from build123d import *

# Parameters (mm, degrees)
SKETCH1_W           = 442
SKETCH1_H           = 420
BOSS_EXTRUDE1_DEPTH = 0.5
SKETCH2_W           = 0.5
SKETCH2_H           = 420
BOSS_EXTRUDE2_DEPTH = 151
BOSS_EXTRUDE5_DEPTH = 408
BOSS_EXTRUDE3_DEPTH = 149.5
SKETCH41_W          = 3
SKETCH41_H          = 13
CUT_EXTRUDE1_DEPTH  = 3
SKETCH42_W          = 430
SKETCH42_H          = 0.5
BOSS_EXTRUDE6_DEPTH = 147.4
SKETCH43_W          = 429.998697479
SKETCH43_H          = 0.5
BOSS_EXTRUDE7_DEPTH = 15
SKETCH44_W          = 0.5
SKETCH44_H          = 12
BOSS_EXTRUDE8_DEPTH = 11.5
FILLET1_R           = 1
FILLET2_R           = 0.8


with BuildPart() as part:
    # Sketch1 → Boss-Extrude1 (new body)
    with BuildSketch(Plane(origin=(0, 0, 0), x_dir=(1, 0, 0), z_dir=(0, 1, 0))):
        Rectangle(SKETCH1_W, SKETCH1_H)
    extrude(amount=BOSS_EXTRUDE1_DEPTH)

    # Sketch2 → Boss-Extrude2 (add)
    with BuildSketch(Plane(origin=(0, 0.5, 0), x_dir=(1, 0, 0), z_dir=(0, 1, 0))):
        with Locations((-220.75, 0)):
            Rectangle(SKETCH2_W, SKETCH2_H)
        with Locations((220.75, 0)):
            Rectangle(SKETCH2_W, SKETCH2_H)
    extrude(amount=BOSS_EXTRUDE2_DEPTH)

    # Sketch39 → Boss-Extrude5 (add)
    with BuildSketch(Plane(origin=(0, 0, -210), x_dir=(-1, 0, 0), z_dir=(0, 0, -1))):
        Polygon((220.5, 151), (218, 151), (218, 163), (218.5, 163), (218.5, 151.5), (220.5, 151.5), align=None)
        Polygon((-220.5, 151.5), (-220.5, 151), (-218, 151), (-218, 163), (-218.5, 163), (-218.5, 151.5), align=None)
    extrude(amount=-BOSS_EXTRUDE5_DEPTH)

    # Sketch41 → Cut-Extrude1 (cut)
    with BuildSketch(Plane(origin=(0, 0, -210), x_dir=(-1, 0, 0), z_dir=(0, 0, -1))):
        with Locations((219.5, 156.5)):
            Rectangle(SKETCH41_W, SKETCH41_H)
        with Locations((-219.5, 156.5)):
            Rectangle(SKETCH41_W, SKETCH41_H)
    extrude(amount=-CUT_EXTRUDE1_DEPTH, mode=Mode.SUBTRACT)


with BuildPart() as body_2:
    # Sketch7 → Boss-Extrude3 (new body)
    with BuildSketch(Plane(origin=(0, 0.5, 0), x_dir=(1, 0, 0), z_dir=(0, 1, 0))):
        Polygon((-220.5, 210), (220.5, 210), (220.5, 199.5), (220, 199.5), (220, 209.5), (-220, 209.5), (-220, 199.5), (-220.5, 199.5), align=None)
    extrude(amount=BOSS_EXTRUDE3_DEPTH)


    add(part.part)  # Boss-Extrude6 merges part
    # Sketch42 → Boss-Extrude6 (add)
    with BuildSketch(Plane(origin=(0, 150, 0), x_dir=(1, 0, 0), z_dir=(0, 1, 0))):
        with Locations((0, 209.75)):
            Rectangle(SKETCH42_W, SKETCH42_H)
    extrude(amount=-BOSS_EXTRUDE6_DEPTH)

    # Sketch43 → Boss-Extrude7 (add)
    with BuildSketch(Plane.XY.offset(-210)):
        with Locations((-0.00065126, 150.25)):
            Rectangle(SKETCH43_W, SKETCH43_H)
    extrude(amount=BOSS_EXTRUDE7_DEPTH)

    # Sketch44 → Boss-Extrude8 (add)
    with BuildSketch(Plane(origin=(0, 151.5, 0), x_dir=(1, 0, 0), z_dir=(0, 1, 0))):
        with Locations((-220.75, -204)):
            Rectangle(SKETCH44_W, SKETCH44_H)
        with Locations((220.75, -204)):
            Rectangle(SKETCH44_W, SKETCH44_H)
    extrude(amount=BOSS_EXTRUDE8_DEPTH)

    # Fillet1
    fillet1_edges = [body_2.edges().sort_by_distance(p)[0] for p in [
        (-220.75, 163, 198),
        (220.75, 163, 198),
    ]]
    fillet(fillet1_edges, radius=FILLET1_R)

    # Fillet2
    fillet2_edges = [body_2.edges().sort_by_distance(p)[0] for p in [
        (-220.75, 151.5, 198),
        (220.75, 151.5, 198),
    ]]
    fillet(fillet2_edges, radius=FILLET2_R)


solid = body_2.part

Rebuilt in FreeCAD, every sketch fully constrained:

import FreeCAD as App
import Part
import Sketcher

V = App.Vector


def edges_at(feature, points):
    """Names of the edges that pass closest to the given points."""
    edges = feature.Shape.Edges
    near = lambda p: min(range(len(edges)), key=lambda i: edges[i].distToShape(Part.Vertex(*p))[0])
    return sorted({f"Edge{near(p) + 1}" for p in points})

doc = App.newDocument("Part")
body = doc.addObject("PartDesign::Body", "Body")

# Sketch on XZ plane
sketch1 = doc.addObject("Sketcher::SketchObject", "Sketch")
body.addObject(sketch1)
sketch1.AttachmentSupport = (doc.XZ_Plane, [""])
sketch1.MapMode = "FlatFace"
sketch1.addGeometry(Part.LineSegment(V(-221, -210, 0), V(-221, 210, 0)), False)
sketch1.addGeometry(Part.LineSegment(V(-221, 210, 0), V(221, 210, 0)), False)
sketch1.addGeometry(Part.LineSegment(V(221, 210, 0), V(221, -210, 0)), False)
sketch1.addGeometry(Part.LineSegment(V(221, -210, 0), V(-221, -210, 0)), False)
sketch1.addConstraint(Sketcher.Constraint("Coincident", 0, 2, 1, 1))
sketch1.addConstraint(Sketcher.Constraint("Coincident", 1, 2, 2, 1))
sketch1.addConstraint(Sketcher.Constraint("Coincident", 2, 2, 3, 1))
sketch1.addConstraint(Sketcher.Constraint("Coincident", 3, 2, 0, 1))
sketch1.addConstraint(Sketcher.Constraint("Vertical", 0))
sketch1.addConstraint(Sketcher.Constraint("Horizontal", 1))
sketch1.addConstraint(Sketcher.Constraint("Vertical", 2))
sketch1.addConstraint(Sketcher.Constraint("Horizontal", 3))
sketch1.addConstraint(Sketcher.Constraint("Symmetric", 0, 2, 2, 2, -1, 1))
sketch1.addConstraint(Sketcher.Constraint("DistanceX", 1, 1, 1, 2, 442.0))
sketch1.addConstraint(Sketcher.Constraint("DistanceY", 0, 1, 0, 2, 420.0))
pad1 = doc.addObject("PartDesign::Pad", "Pad")
body.addObject(pad1)
pad1.Profile = sketch1
pad1.Length = 0.5
pad1.Reversed = True

# Sketch on XZ plane
sketch2 = doc.addObject("Sketcher::SketchObject", "Sketch001")
body.addObject(sketch2)
sketch2.AttachmentSupport = (doc.XZ_Plane, [""])
sketch2.MapMode = "FlatFace"
sketch2.AttachmentOffset = App.Placement(V(0, 0, -0.5), App.Rotation())
sketch2.addGeometry(Part.LineSegment(V(-221, -210, 0), V(-221, 210, 0)), False)
sketch2.addGeometry(Part.LineSegment(V(-221, 210, 0), V(-220.5, 210, 0)), False)
sketch2.addGeometry(Part.LineSegment(V(-220.5, 210, 0), V(-220.5, -210, 0)), False)
sketch2.addGeometry(Part.LineSegment(V(-220.5, -210, 0), V(-221, -210, 0)), False)
sketch2.addGeometry(Part.LineSegment(V(220.5, -210, 0), V(220.5, 210, 0)), False)
sketch2.addGeometry(Part.LineSegment(V(220.5, 210, 0), V(221, 210, 0)), False)
sketch2.addGeometry(Part.LineSegment(V(221, 210, 0), V(221, -210, 0)), False)
sketch2.addGeometry(Part.LineSegment(V(221, -210, 0), V(220.5, -210, 0)), False)
sketch2.addConstraint(Sketcher.Constraint("Coincident", 0, 2, 1, 1))
sketch2.addConstraint(Sketcher.Constraint("Coincident", 1, 2, 2, 1))
sketch2.addConstraint(Sketcher.Constraint("Coincident", 2, 2, 3, 1))
sketch2.addConstraint(Sketcher.Constraint("Coincident", 3, 2, 0, 1))
sketch2.addConstraint(Sketcher.Constraint("Coincident", 4, 2, 5, 1))
sketch2.addConstraint(Sketcher.Constraint("Coincident", 5, 2, 6, 1))
sketch2.addConstraint(Sketcher.Constraint("Coincident", 6, 2, 7, 1))
sketch2.addConstraint(Sketcher.Constraint("Coincident", 7, 2, 4, 1))
sketch2.addConstraint(Sketcher.Constraint("Vertical", 0))
sketch2.addConstraint(Sketcher.Constraint("Horizontal", 1))
sketch2.addConstraint(Sketcher.Constraint("Vertical", 2))
sketch2.addConstraint(Sketcher.Constraint("Horizontal", 3))
sketch2.addConstraint(Sketcher.Constraint("Vertical", 4))
sketch2.addConstraint(Sketcher.Constraint("Horizontal", 5))
sketch2.addConstraint(Sketcher.Constraint("Vertical", 6))
sketch2.addConstraint(Sketcher.Constraint("Horizontal", 7))
sketch2.addConstraint(Sketcher.Constraint("Symmetric", 2, 2, 4, 2, -1, 1))
sketch2.addConstraint(Sketcher.Constraint("Symmetric", 0, 2, 6, 2, -1, 1))
sketch2.addConstraint(Sketcher.Constraint("Horizontal", 1, 2, 4, 2))
sketch2.addConstraint(Sketcher.Constraint("DistanceY", 0, 1, 0, 2, 420.0))
sketch2.addConstraint(Sketcher.Constraint("DistanceX", 1, 1, 1, 2, 0.5))
sketch2.addConstraint(Sketcher.Constraint("DistanceX", 0, 2, -1, 1, 221.0))
pad2 = doc.addObject("PartDesign::Pad", "Pad001")
body.addObject(pad2)
pad2.Profile = sketch2
pad2.Length = 151
pad2.Reversed = True

# Sketch on XY plane
sketch3 = doc.addObject("Sketcher::SketchObject", "Sketch002")
body.addObject(sketch3)
sketch3.AttachmentSupport = (doc.XY_Plane, [""])
sketch3.MapMode = "FlatFace"
sketch3.AttachmentOffset = App.Placement(V(0, 0, -210), App.Rotation())
sketch3.addGeometry(Part.LineSegment(V(-218, 151, 0), V(-220.5, 151, 0)), False)
sketch3.addGeometry(Part.LineSegment(V(-220.5, 151, 0), V(-220.5, 151.5, 0)), False)
sketch3.addGeometry(Part.LineSegment(V(-220.5, 151.5, 0), V(-218.5, 151.5, 0)), False)
sketch3.addGeometry(Part.LineSegment(V(-218.5, 151.5, 0), V(-218.5, 163, 0)), False)
sketch3.addGeometry(Part.LineSegment(V(-218.5, 163, 0), V(-218, 163, 0)), False)
sketch3.addGeometry(Part.LineSegment(V(-218, 163, 0), V(-218, 151, 0)), False)
sketch3.addGeometry(Part.LineSegment(V(220.5, 151.5, 0), V(220.5, 151, 0)), False)
sketch3.addGeometry(Part.LineSegment(V(220.5, 151, 0), V(218, 151, 0)), False)
sketch3.addGeometry(Part.LineSegment(V(218, 151, 0), V(218, 163, 0)), False)
sketch3.addGeometry(Part.LineSegment(V(218, 163, 0), V(218.5, 163, 0)), False)
sketch3.addGeometry(Part.LineSegment(V(218.5, 163, 0), V(218.5, 151.5, 0)), False)
sketch3.addGeometry(Part.LineSegment(V(218.5, 151.5, 0), V(220.5, 151.5, 0)), False)
sketch3.addConstraint(Sketcher.Constraint("Coincident", 0, 2, 1, 1))
sketch3.addConstraint(Sketcher.Constraint("Coincident", 1, 2, 2, 1))
sketch3.addConstraint(Sketcher.Constraint("Coincident", 2, 2, 3, 1))
sketch3.addConstraint(Sketcher.Constraint("Coincident", 3, 2, 4, 1))
sketch3.addConstraint(Sketcher.Constraint("Coincident", 4, 2, 5, 1))
sketch3.addConstraint(Sketcher.Constraint("Coincident", 5, 2, 0, 1))
sketch3.addConstraint(Sketcher.Constraint("Coincident", 6, 2, 7, 1))
sketch3.addConstraint(Sketcher.Constraint("Coincident", 7, 2, 8, 1))
sketch3.addConstraint(Sketcher.Constraint("Coincident", 8, 2, 9, 1))
sketch3.addConstraint(Sketcher.Constraint("Coincident", 9, 2, 10, 1))
sketch3.addConstraint(Sketcher.Constraint("Coincident", 10, 2, 11, 1))
sketch3.addConstraint(Sketcher.Constraint("Coincident", 11, 2, 6, 1))
sketch3.addConstraint(Sketcher.Constraint("Horizontal", 0))
sketch3.addConstraint(Sketcher.Constraint("Vertical", 1))
sketch3.addConstraint(Sketcher.Constraint("Horizontal", 2))
sketch3.addConstraint(Sketcher.Constraint("Vertical", 3))
sketch3.addConstraint(Sketcher.Constraint("Horizontal", 4))
sketch3.addConstraint(Sketcher.Constraint("Vertical", 5))
sketch3.addConstraint(Sketcher.Constraint("Vertical", 6))
sketch3.addConstraint(Sketcher.Constraint("Horizontal", 7))
sketch3.addConstraint(Sketcher.Constraint("Vertical", 8))
sketch3.addConstraint(Sketcher.Constraint("Horizontal", 9))
sketch3.addConstraint(Sketcher.Constraint("Vertical", 10))
sketch3.addConstraint(Sketcher.Constraint("Horizontal", 11))
sketch3.addConstraint(Sketcher.Constraint("Symmetric", 0, 2, 6, 2, -2))
sketch3.addConstraint(Sketcher.Constraint("Symmetric", 4, 2, 8, 2, -2))
sketch3.addConstraint(Sketcher.Constraint("Symmetric", 2, 2, 10, 2, -2))
sketch3.addConstraint(Sketcher.Constraint("Equal", 9, 1))
sketch3.addConstraint(Sketcher.Constraint("DistanceX", 2, 1, 2, 2, 2.0))
sketch3.addConstraint(Sketcher.Constraint("DistanceY", 5, 2, 5, 1, 12.0))
sketch3.addConstraint(Sketcher.Constraint("DistanceX", 0, 2, 0, 1, 2.5))
sketch3.addConstraint(Sketcher.Constraint("DistanceY", -1, 1, 0, 2, 151.0))
sketch3.addConstraint(Sketcher.Constraint("DistanceX", 4, 2, -1, 1, 218.0))
pad3 = doc.addObject("PartDesign::Pad", "Pad002")
body.addObject(pad3)
pad3.Profile = sketch3
pad3.Length = 408

# Sketch on XY plane
sketch4 = doc.addObject("Sketcher::SketchObject", "Sketch003")
body.addObject(sketch4)
sketch4.AttachmentSupport = (doc.XY_Plane, [""])
sketch4.MapMode = "FlatFace"
sketch4.AttachmentOffset = App.Placement(V(0, 0, -210), App.Rotation())
sketch4.addGeometry(Part.LineSegment(V(-218, 163, 0), V(-218, 150, 0)), False)
sketch4.addGeometry(Part.LineSegment(V(-218, 150, 0), V(-221, 150, 0)), False)
sketch4.addGeometry(Part.LineSegment(V(-221, 150, 0), V(-221, 163, 0)), False)
sketch4.addGeometry(Part.LineSegment(V(-221, 163, 0), V(-218, 163, 0)), False)
sketch4.addGeometry(Part.LineSegment(V(221, 163, 0), V(221, 150, 0)), False)
sketch4.addGeometry(Part.LineSegment(V(221, 150, 0), V(218, 150, 0)), False)
sketch4.addGeometry(Part.LineSegment(V(218, 150, 0), V(218, 163, 0)), False)
sketch4.addGeometry(Part.LineSegment(V(218, 163, 0), V(221, 163, 0)), False)
sketch4.addConstraint(Sketcher.Constraint("Coincident", 0, 2, 1, 1))
sketch4.addConstraint(Sketcher.Constraint("Coincident", 1, 2, 2, 1))
sketch4.addConstraint(Sketcher.Constraint("Coincident", 2, 2, 3, 1))
sketch4.addConstraint(Sketcher.Constraint("Coincident", 3, 2, 0, 1))
sketch4.addConstraint(Sketcher.Constraint("Coincident", 4, 2, 5, 1))
sketch4.addConstraint(Sketcher.Constraint("Coincident", 5, 2, 6, 1))
sketch4.addConstraint(Sketcher.Constraint("Coincident", 6, 2, 7, 1))
sketch4.addConstraint(Sketcher.Constraint("Coincident", 7, 2, 4, 1))
sketch4.addConstraint(Sketcher.Constraint("Vertical", 0))
sketch4.addConstraint(Sketcher.Constraint("Horizontal", 1))
sketch4.addConstraint(Sketcher.Constraint("Vertical", 2))
sketch4.addConstraint(Sketcher.Constraint("Horizontal", 3))
sketch4.addConstraint(Sketcher.Constraint("Vertical", 4))
sketch4.addConstraint(Sketcher.Constraint("Horizontal", 5))
sketch4.addConstraint(Sketcher.Constraint("Vertical", 6))
sketch4.addConstraint(Sketcher.Constraint("Horizontal", 7))
sketch4.addConstraint(Sketcher.Constraint("Symmetric", 1, 2, 4, 2, -2))
sketch4.addConstraint(Sketcher.Constraint("Symmetric", 3, 2, 6, 2, -2))
sketch4.addConstraint(Sketcher.Constraint("DistanceX", 1, 2, 1, 1, 3.0))
sketch4.addConstraint(Sketcher.Constraint("DistanceY", 0, 2, 0, 1, 13.0))
sketch4.addConstraint(Sketcher.Constraint("DistanceX", 0, 2, -1, 1, 218.0))
sketch4.addConstraint(Sketcher.Constraint("DistanceY", -1, 1, 0, 2, 150.0))
pocket1 = doc.addObject("PartDesign::Pocket", "Pocket")
body.addObject(pocket1)
pocket1.Profile = sketch4
pocket1.Length = 3
pocket1.Reversed = True
body2 = doc.addObject("PartDesign::Body", "Body001")

# Sketch on XZ plane
sketch5 = doc.addObject("Sketcher::SketchObject", "Sketch004")
body2.addObject(sketch5)
sketch5.AttachmentSupport = (doc.getObject("XZ_Plane001"), [""])
sketch5.MapMode = "FlatFace"
sketch5.AttachmentOffset = App.Placement(V(0, 0, -0.5), App.Rotation())
sketch5.addGeometry(Part.LineSegment(V(220.5, -210, 0), V(-220.5, -210, 0)), False)
sketch5.addGeometry(Part.LineSegment(V(-220.5, -210, 0), V(-220.5, -199.5, 0)), False)
sketch5.addGeometry(Part.LineSegment(V(-220.5, -199.5, 0), V(-220, -199.5, 0)), False)
sketch5.addGeometry(Part.LineSegment(V(-220, -199.5, 0), V(-220, -209.5, 0)), False)
sketch5.addGeometry(Part.LineSegment(V(-220, -209.5, 0), V(220, -209.5, 0)), False)
sketch5.addGeometry(Part.LineSegment(V(220, -209.5, 0), V(220, -199.5, 0)), False)
sketch5.addGeometry(Part.LineSegment(V(220, -199.5, 0), V(220.5, -199.5, 0)), False)
sketch5.addGeometry(Part.LineSegment(V(220.5, -199.5, 0), V(220.5, -210, 0)), False)
sketch5.addConstraint(Sketcher.Constraint("Coincident", 0, 2, 1, 1))
sketch5.addConstraint(Sketcher.Constraint("Coincident", 1, 2, 2, 1))
sketch5.addConstraint(Sketcher.Constraint("Coincident", 2, 2, 3, 1))
sketch5.addConstraint(Sketcher.Constraint("Coincident", 3, 2, 4, 1))
sketch5.addConstraint(Sketcher.Constraint("Coincident", 4, 2, 5, 1))
sketch5.addConstraint(Sketcher.Constraint("Coincident", 5, 2, 6, 1))
sketch5.addConstraint(Sketcher.Constraint("Coincident", 6, 2, 7, 1))
sketch5.addConstraint(Sketcher.Constraint("Coincident", 7, 2, 0, 1))
sketch5.addConstraint(Sketcher.Constraint("Horizontal", 0))
sketch5.addConstraint(Sketcher.Constraint("Vertical", 1))
sketch5.addConstraint(Sketcher.Constraint("Horizontal", 2))
sketch5.addConstraint(Sketcher.Constraint("Vertical", 3))
sketch5.addConstraint(Sketcher.Constraint("Horizontal", 4))
sketch5.addConstraint(Sketcher.Constraint("Vertical", 5))
sketch5.addConstraint(Sketcher.Constraint("Horizontal", 6))
sketch5.addConstraint(Sketcher.Constraint("Vertical", 7))
sketch5.addConstraint(Sketcher.Constraint("Symmetric", 2, 2, 5, 2, -2))
sketch5.addConstraint(Sketcher.Constraint("Equal", 2, 6))
sketch5.addConstraint(Sketcher.Constraint("DistanceX", 0, 2, 0, 1, 441.0))
sketch5.addConstraint(Sketcher.Constraint("DistanceX", 4, 1, 4, 2, 440.0))
sketch5.addConstraint(Sketcher.Constraint("DistanceY", 3, 2, 3, 1, 10.0))
sketch5.addConstraint(Sketcher.Constraint("DistanceY", 1, 1, 1, 2, 10.5))
sketch5.addConstraint(Sketcher.Constraint("DistanceY", 0, 2, -1, 1, 210.0))
pad4 = doc.addObject("PartDesign::Pad", "Pad003")
body2.addObject(pad4)
pad4.Profile = sketch5
pad4.Length = 149.5
pad4.Reversed = True
doc.recompute()

boolean = doc.addObject("PartDesign::Boolean", "Boolean")
body2.addObject(boolean)
boolean.Type = "Fuse"
boolean.addObjects([body])

# Sketch on XZ plane
sketch6 = doc.addObject("Sketcher::SketchObject", "Sketch005")
body2.addObject(sketch6)
sketch6.AttachmentSupport = (doc.getObject("XZ_Plane001"), [""])
sketch6.MapMode = "FlatFace"
sketch6.AttachmentOffset = App.Placement(V(0, 0, -150), App.Rotation())
sketch6.addGeometry(Part.LineSegment(V(-215, -210, 0), V(-215, -209.5, 0)), False)
sketch6.addGeometry(Part.LineSegment(V(-215, -209.5, 0), V(215, -209.5, 0)), False)
sketch6.addGeometry(Part.LineSegment(V(215, -209.5, 0), V(215, -210, 0)), False)
sketch6.addGeometry(Part.LineSegment(V(215, -210, 0), V(-215, -210, 0)), False)
sketch6.addConstraint(Sketcher.Constraint("Coincident", 0, 2, 1, 1))
sketch6.addConstraint(Sketcher.Constraint("Coincident", 1, 2, 2, 1))
sketch6.addConstraint(Sketcher.Constraint("Coincident", 2, 2, 3, 1))
sketch6.addConstraint(Sketcher.Constraint("Coincident", 3, 2, 0, 1))
sketch6.addConstraint(Sketcher.Constraint("Vertical", 0))
sketch6.addConstraint(Sketcher.Constraint("Horizontal", 1))
sketch6.addConstraint(Sketcher.Constraint("Vertical", 2))
sketch6.addConstraint(Sketcher.Constraint("Horizontal", 3))
sketch6.addConstraint(Sketcher.Constraint("DistanceX", 1, 1, 1, 2, 430.0))
sketch6.addConstraint(Sketcher.Constraint("DistanceY", 0, 1, 0, 2, 0.5))
sketch6.addConstraint(Sketcher.Constraint("DistanceX", 0, 2, -1, 1, 215.0))
sketch6.addConstraint(Sketcher.Constraint("DistanceY", 2, 2, -1, 1, 210.0))
pad5 = doc.addObject("PartDesign::Pad", "Pad004")
body2.addObject(pad5)
pad5.Profile = sketch6
pad5.Length = 147.4

# Sketch on XY plane
sketch7 = doc.addObject("Sketcher::SketchObject", "Sketch006")
body2.addObject(sketch7)
sketch7.AttachmentSupport = (doc.getObject("XY_Plane001"), [""])
sketch7.MapMode = "FlatFace"
sketch7.AttachmentOffset = App.Placement(V(0, 0, -210), App.Rotation())
sketch7.addGeometry(Part.LineSegment(V(-215, 150.5, 0), V(-215, 150, 0)), False)
sketch7.addGeometry(Part.LineSegment(V(-215, 150, 0), V(214.998697, 150, 0)), False)
sketch7.addGeometry(Part.LineSegment(V(214.998697, 150, 0), V(214.998697, 150.5, 0)), False)
sketch7.addGeometry(Part.LineSegment(V(214.998697, 150.5, 0), V(-215, 150.5, 0)), False)
sketch7.addConstraint(Sketcher.Constraint("Coincident", 0, 2, 1, 1))
sketch7.addConstraint(Sketcher.Constraint("Coincident", 1, 2, 2, 1))
sketch7.addConstraint(Sketcher.Constraint("Coincident", 2, 2, 3, 1))
sketch7.addConstraint(Sketcher.Constraint("Coincident", 3, 2, 0, 1))
sketch7.addConstraint(Sketcher.Constraint("Vertical", 0))
sketch7.addConstraint(Sketcher.Constraint("Horizontal", 1))
sketch7.addConstraint(Sketcher.Constraint("Vertical", 2))
sketch7.addConstraint(Sketcher.Constraint("Horizontal", 3))
sketch7.addConstraint(Sketcher.Constraint("DistanceY", 0, 2, 0, 1, 0.5))
sketch7.addConstraint(Sketcher.Constraint("DistanceX", 0, 2, -1, 1, 215.0))
sketch7.addConstraint(Sketcher.Constraint("DistanceY", -1, 1, 0, 2, 150.0))
sketch7.addConstraint(Sketcher.Constraint("DistanceX", 1, 1, 1, 2, 429.998697))
pad6 = doc.addObject("PartDesign::Pad", "Pad005")
body2.addObject(pad6)
pad6.Profile = sketch7
pad6.Length = 15

# Sketch on XZ plane
sketch8 = doc.addObject("Sketcher::SketchObject", "Sketch007")
body2.addObject(sketch8)
sketch8.AttachmentSupport = (doc.getObject("XZ_Plane001"), [""])
sketch8.MapMode = "FlatFace"
sketch8.AttachmentOffset = App.Placement(V(0, 0, -151.5), App.Rotation())
sketch8.addGeometry(Part.LineSegment(V(-221, 198, 0), V(-221, 210, 0)), False)
sketch8.addGeometry(Part.LineSegment(V(-221, 210, 0), V(-220.5, 210, 0)), False)
sketch8.addGeometry(Part.LineSegment(V(-220.5, 210, 0), V(-220.5, 198, 0)), False)
sketch8.addGeometry(Part.LineSegment(V(-220.5, 198, 0), V(-221, 198, 0)), False)
sketch8.addGeometry(Part.LineSegment(V(220.5, 198, 0), V(220.5, 210, 0)), False)
sketch8.addGeometry(Part.LineSegment(V(220.5, 210, 0), V(221, 210, 0)), False)
sketch8.addGeometry(Part.LineSegment(V(221, 210, 0), V(221, 198, 0)), False)
sketch8.addGeometry(Part.LineSegment(V(221, 198, 0), V(220.5, 198, 0)), False)
sketch8.addConstraint(Sketcher.Constraint("Coincident", 0, 2, 1, 1))
sketch8.addConstraint(Sketcher.Constraint("Coincident", 1, 2, 2, 1))
sketch8.addConstraint(Sketcher.Constraint("Coincident", 2, 2, 3, 1))
sketch8.addConstraint(Sketcher.Constraint("Coincident", 3, 2, 0, 1))
sketch8.addConstraint(Sketcher.Constraint("Coincident", 4, 2, 5, 1))
sketch8.addConstraint(Sketcher.Constraint("Coincident", 5, 2, 6, 1))
sketch8.addConstraint(Sketcher.Constraint("Coincident", 6, 2, 7, 1))
sketch8.addConstraint(Sketcher.Constraint("Coincident", 7, 2, 4, 1))
sketch8.addConstraint(Sketcher.Constraint("Vertical", 0))
sketch8.addConstraint(Sketcher.Constraint("Horizontal", 1))
sketch8.addConstraint(Sketcher.Constraint("Vertical", 2))
sketch8.addConstraint(Sketcher.Constraint("Horizontal", 3))
sketch8.addConstraint(Sketcher.Constraint("Vertical", 4))
sketch8.addConstraint(Sketcher.Constraint("Horizontal", 5))
sketch8.addConstraint(Sketcher.Constraint("Vertical", 6))
sketch8.addConstraint(Sketcher.Constraint("Horizontal", 7))
sketch8.addConstraint(Sketcher.Constraint("Symmetric", 1, 2, 4, 2, -2))
sketch8.addConstraint(Sketcher.Constraint("Symmetric", 3, 2, 6, 2, -2))
sketch8.addConstraint(Sketcher.Constraint("DistanceY", 0, 1, 0, 2, 12.0))
sketch8.addConstraint(Sketcher.Constraint("DistanceX", 1, 1, 1, 2, 0.5))
sketch8.addConstraint(Sketcher.Constraint("DistanceX", 0, 2, -1, 1, 221.0))
sketch8.addConstraint(Sketcher.Constraint("DistanceY", -1, 1, 0, 2, 210.0))
pad7 = doc.addObject("PartDesign::Pad", "Pad006")
body2.addObject(pad7)
pad7.Profile = sketch8
pad7.Length = 11.5
pad7.Reversed = True
doc.recompute()

fillet = doc.addObject("PartDesign::Fillet", "Fillet")
body2.addObject(fillet)
fillet.Base = (pad7, edges_at(pad7, [(-220.75, 163, 198), (220.75, 163, 198)]))
fillet.Radius = 1
doc.recompute()

fillet2 = doc.addObject("PartDesign::Fillet", "Fillet001")
body2.addObject(fillet2)
fillet2.Base = (fillet, edges_at(fillet, [(-220.75, 151.5, 198), (220.75, 151.5, 198)]))
fillet2.Radius = 0.8

doc.recompute()
